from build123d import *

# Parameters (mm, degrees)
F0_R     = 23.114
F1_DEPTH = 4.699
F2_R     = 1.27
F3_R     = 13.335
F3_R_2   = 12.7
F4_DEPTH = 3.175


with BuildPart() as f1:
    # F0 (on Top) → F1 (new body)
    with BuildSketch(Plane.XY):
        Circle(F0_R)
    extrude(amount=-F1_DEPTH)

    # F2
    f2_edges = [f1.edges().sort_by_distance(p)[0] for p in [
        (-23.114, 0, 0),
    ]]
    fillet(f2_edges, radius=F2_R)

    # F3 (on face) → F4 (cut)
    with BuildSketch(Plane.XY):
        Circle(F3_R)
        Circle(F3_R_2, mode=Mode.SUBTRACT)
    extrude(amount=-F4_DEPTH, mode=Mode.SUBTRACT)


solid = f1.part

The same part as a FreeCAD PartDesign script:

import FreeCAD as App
import Part
import Sketcher
from FreeCAD import Vector
Q = App.Units.Quantity


def edges_at(feature, points):
    """Names of the edges that pass closest to the given points."""
    edges = feature.Shape.Edges
    near = lambda p: min(range(len(edges)), key=lambda i: edges[i].distToShape(Part.Vertex(*p))[0])
    return sorted({f"Edge{near(p) + 1}" for p in points})

doc = App.newDocument("Part")
body = doc.addObject("PartDesign::Body", "Body")

sketch1 = body.newObject("Sketcher::SketchObject", "Sketch")
sketch1.AttachmentSupport = (doc.getObject("XY_Plane"), [""])
sketch1.MapMode = "FlatFace"
sketch1.addGeometry(Part.Circle(Vector(0, 0, 0), Vector(0, 0, 1), 23), False)
sketch1.addConstraint([
    Sketcher.Constraint("Coincident", 0, 3, -1, 1),
    Sketcher.Constraint("Diameter", 0, Q("1.82 in")),
])
pad1 = body.newObject("PartDesign::Pad", "Pad")
pad1.Profile = sketch1
pad1.Length = Q("0.185 in")
pad1.Reversed = True
doc.recompute()

fillet = body.newObject("PartDesign::Fillet", "Fillet")
fillet.Base = (pad1, edges_at(pad1, [(-23.114, 0, 0)]))
fillet.Radius = Q("0.05 in")

sketch2 = body.newObject("Sketcher::SketchObject", "Sketch001")
sketch2.AttachmentSupport = (doc.getObject("XY_Plane"), [""])
sketch2.MapMode = "FlatFace"
sketch2.addGeometry([
    Part.Circle(Vector(0, 0, 0), Vector(0, 0, 1), 13),
    Part.Circle(Vector(0, 0, 0), Vector(0, 0, 1), 13),
], False)
sketch2.addConstraint([
    Sketcher.Constraint("Coincident", 0, 3, -1, 1),
    Sketcher.Constraint("Coincident", 1, 3, -1, 1),
    Sketcher.Constraint("Diameter", 1, Q("1 in")),
    Sketcher.Constraint("Diameter", 0, Q("1.05 in")),
])
pocket1 = body.newObject("PartDesign::Pocket", "Pocket")
pocket1.Profile = sketch2
pocket1.Length = Q("0.125 in")

doc.recompute()
